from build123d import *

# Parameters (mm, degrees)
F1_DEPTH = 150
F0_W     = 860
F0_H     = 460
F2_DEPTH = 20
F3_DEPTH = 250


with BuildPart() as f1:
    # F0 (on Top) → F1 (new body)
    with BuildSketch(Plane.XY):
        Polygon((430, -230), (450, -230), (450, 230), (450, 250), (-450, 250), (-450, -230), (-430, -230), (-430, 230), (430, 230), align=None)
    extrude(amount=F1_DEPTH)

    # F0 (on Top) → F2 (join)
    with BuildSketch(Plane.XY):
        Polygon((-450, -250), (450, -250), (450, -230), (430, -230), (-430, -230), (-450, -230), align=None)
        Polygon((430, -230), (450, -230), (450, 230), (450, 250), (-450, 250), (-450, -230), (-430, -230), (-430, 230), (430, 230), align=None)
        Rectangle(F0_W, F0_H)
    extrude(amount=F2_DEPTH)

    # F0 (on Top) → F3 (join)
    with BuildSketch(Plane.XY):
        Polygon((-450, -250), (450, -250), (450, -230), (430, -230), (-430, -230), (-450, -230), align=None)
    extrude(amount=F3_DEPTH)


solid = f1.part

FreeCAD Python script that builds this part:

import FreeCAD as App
import Part
import Sketcher

V = App.Vector


def add_polygon(sketch, points):
    """Adds a closed chain of lines whose ends are joined by coincident constraints."""
    first, n = sketch.GeometryCount, len(points)
    for a, b in zip(points, points[1:] + points[:1]):
        sketch.addGeometry(Part.LineSegment(App.Vector(*a, 0), App.Vector(*b, 0)), False)
    for i in range(n):
        sketch.addConstraint(Sketcher.Constraint("Coincident", first + i, 2, first + (i + 1) % n, 1))

doc = App.newDocument("Part")
body = doc.addObject("PartDesign::Body", "Body")

# Sketch on XY plane
sketch1 = doc.addObject("Sketcher::SketchObject", "Sketch")
body.addObject(sketch1)
sketch1.AttachmentSupport = (doc.XY_Plane, [""])
sketch1.MapMode = "FlatFace"
add_polygon(sketch1, [(430, -230), (450, -230), (450, 250), (-450, 250), (-450, -230), (-430, -230), (-430, 230), (430, 230)])  # lines 0-7
sketch1.addConstraint(Sketcher.Constraint("Horizontal", 0))
sketch1.addConstraint(Sketcher.Constraint("Vertical", 1))
sketch1.addConstraint(Sketcher.Constraint("Horizontal", 2))
sketch1.addConstraint(Sketcher.Constraint("Vertical", 3))
sketch1.addConstraint(Sketcher.Constraint("Horizontal", 4))
sketch1.addConstraint(Sketcher.Constraint("Vertical", 5))
sketch1.addConstraint(Sketcher.Constraint("Horizontal", 6))
sketch1.addConstraint(Sketcher.Constraint("Vertical", 7))
sketch1.addConstraint(Sketcher.Constraint("Symmetric", 4, 2, 6, 2, -1, 1))
sketch1.addConstraint(Sketcher.Constraint("Symmetric", 0, 2, 3, 2, -2))
sketch1.addConstraint(Sketcher.Constraint("DistanceX", 0, 1, 0, 2, 20.0))
sketch1.addConstraint(Sketcher.Constraint("DistanceX", 2, 2, 2, 1, 900.0))
sketch1.addConstraint(Sketcher.Constraint("DistanceY", 1, 1, 1, 2, 480.0))
sketch1.addConstraint(Sketcher.Constraint("DistanceY", 5, 1, 5, 2, 460.0))
pad1 = doc.addObject("PartDesign::Pad", "Pad")
body.addObject(pad1)
pad1.Profile = sketch1
pad1.Length = 150

# Sketch on XY plane
sketch2 = doc.addObject("Sketcher::SketchObject", "Sketch001")
body.addObject(sketch2)
sketch2.AttachmentSupport = (doc.XY_Plane, [""])
sketch2.MapMode = "FlatFace"
add_polygon(sketch2, [(-450, -250), (450, -250), (450, 250), (-450, 250)])  # lines 0-3
sketch2.addConstraint(Sketcher.Constraint("Horizontal", 0))
sketch2.addConstraint(Sketcher.Constraint("Vertical", 1))
sketch2.addConstraint(Sketcher.Constraint("Horizontal", 2))
sketch2.addConstraint(Sketcher.Constraint("Vertical", 3))
sketch2.addConstraint(Sketcher.Constraint("Symmetric", 0, 2, 2, 2, -1, 1))
sketch2.addConstraint(Sketcher.Constraint("DistanceX", 0, 1, 0, 2, 900.0))
sketch2.addConstraint(Sketcher.Constraint("DistanceY", 1, 1, 1, 2, 500.0))
pad2 = doc.addObject("PartDesign::Pad", "Pad001")
body.addObject(pad2)
pad2.Profile = sketch2
pad2.Length = 20

# Sketch on XY plane
sketch3 = doc.addObject("Sketcher::SketchObject", "Sketch002")
body.addObject(sketch3)
sketch3.AttachmentSupport = (doc.XY_Plane, [""])
sketch3.MapMode = "FlatFace"
add_polygon(sketch3, [(-450, -250), (450, -250), (450, -230), (-450, -230)])  # lines 0-3
sketch3.addConstraint(Sketcher.Constraint("Horizontal", 0))
sketch3.addConstraint(Sketcher.Constraint("Vertical", 1))
sketch3.addConstraint(Sketcher.Constraint("Horizontal", 2))
sketch3.addConstraint(Sketcher.Constraint("Vertical", 3))
sketch3.addConstraint(Sketcher.Constraint("DistanceX", 0, 1, 0, 2, 900.0))
sketch3.addConstraint(Sketcher.Constraint("DistanceY", 1, 1, 1, 2, 20.0))
sketch3.addConstraint(Sketcher.Constraint("DistanceX", -1, 1, 0, 2, 450.0))
sketch3.addConstraint(Sketcher.Constraint("DistanceY", 0, 2, -1, 1, 250.0))
pad3 = doc.addObject("PartDesign::Pad", "Pad002")
body.addObject(pad3)
pad3.Profile = sketch3
pad3.Length = 250

doc.recompute()
